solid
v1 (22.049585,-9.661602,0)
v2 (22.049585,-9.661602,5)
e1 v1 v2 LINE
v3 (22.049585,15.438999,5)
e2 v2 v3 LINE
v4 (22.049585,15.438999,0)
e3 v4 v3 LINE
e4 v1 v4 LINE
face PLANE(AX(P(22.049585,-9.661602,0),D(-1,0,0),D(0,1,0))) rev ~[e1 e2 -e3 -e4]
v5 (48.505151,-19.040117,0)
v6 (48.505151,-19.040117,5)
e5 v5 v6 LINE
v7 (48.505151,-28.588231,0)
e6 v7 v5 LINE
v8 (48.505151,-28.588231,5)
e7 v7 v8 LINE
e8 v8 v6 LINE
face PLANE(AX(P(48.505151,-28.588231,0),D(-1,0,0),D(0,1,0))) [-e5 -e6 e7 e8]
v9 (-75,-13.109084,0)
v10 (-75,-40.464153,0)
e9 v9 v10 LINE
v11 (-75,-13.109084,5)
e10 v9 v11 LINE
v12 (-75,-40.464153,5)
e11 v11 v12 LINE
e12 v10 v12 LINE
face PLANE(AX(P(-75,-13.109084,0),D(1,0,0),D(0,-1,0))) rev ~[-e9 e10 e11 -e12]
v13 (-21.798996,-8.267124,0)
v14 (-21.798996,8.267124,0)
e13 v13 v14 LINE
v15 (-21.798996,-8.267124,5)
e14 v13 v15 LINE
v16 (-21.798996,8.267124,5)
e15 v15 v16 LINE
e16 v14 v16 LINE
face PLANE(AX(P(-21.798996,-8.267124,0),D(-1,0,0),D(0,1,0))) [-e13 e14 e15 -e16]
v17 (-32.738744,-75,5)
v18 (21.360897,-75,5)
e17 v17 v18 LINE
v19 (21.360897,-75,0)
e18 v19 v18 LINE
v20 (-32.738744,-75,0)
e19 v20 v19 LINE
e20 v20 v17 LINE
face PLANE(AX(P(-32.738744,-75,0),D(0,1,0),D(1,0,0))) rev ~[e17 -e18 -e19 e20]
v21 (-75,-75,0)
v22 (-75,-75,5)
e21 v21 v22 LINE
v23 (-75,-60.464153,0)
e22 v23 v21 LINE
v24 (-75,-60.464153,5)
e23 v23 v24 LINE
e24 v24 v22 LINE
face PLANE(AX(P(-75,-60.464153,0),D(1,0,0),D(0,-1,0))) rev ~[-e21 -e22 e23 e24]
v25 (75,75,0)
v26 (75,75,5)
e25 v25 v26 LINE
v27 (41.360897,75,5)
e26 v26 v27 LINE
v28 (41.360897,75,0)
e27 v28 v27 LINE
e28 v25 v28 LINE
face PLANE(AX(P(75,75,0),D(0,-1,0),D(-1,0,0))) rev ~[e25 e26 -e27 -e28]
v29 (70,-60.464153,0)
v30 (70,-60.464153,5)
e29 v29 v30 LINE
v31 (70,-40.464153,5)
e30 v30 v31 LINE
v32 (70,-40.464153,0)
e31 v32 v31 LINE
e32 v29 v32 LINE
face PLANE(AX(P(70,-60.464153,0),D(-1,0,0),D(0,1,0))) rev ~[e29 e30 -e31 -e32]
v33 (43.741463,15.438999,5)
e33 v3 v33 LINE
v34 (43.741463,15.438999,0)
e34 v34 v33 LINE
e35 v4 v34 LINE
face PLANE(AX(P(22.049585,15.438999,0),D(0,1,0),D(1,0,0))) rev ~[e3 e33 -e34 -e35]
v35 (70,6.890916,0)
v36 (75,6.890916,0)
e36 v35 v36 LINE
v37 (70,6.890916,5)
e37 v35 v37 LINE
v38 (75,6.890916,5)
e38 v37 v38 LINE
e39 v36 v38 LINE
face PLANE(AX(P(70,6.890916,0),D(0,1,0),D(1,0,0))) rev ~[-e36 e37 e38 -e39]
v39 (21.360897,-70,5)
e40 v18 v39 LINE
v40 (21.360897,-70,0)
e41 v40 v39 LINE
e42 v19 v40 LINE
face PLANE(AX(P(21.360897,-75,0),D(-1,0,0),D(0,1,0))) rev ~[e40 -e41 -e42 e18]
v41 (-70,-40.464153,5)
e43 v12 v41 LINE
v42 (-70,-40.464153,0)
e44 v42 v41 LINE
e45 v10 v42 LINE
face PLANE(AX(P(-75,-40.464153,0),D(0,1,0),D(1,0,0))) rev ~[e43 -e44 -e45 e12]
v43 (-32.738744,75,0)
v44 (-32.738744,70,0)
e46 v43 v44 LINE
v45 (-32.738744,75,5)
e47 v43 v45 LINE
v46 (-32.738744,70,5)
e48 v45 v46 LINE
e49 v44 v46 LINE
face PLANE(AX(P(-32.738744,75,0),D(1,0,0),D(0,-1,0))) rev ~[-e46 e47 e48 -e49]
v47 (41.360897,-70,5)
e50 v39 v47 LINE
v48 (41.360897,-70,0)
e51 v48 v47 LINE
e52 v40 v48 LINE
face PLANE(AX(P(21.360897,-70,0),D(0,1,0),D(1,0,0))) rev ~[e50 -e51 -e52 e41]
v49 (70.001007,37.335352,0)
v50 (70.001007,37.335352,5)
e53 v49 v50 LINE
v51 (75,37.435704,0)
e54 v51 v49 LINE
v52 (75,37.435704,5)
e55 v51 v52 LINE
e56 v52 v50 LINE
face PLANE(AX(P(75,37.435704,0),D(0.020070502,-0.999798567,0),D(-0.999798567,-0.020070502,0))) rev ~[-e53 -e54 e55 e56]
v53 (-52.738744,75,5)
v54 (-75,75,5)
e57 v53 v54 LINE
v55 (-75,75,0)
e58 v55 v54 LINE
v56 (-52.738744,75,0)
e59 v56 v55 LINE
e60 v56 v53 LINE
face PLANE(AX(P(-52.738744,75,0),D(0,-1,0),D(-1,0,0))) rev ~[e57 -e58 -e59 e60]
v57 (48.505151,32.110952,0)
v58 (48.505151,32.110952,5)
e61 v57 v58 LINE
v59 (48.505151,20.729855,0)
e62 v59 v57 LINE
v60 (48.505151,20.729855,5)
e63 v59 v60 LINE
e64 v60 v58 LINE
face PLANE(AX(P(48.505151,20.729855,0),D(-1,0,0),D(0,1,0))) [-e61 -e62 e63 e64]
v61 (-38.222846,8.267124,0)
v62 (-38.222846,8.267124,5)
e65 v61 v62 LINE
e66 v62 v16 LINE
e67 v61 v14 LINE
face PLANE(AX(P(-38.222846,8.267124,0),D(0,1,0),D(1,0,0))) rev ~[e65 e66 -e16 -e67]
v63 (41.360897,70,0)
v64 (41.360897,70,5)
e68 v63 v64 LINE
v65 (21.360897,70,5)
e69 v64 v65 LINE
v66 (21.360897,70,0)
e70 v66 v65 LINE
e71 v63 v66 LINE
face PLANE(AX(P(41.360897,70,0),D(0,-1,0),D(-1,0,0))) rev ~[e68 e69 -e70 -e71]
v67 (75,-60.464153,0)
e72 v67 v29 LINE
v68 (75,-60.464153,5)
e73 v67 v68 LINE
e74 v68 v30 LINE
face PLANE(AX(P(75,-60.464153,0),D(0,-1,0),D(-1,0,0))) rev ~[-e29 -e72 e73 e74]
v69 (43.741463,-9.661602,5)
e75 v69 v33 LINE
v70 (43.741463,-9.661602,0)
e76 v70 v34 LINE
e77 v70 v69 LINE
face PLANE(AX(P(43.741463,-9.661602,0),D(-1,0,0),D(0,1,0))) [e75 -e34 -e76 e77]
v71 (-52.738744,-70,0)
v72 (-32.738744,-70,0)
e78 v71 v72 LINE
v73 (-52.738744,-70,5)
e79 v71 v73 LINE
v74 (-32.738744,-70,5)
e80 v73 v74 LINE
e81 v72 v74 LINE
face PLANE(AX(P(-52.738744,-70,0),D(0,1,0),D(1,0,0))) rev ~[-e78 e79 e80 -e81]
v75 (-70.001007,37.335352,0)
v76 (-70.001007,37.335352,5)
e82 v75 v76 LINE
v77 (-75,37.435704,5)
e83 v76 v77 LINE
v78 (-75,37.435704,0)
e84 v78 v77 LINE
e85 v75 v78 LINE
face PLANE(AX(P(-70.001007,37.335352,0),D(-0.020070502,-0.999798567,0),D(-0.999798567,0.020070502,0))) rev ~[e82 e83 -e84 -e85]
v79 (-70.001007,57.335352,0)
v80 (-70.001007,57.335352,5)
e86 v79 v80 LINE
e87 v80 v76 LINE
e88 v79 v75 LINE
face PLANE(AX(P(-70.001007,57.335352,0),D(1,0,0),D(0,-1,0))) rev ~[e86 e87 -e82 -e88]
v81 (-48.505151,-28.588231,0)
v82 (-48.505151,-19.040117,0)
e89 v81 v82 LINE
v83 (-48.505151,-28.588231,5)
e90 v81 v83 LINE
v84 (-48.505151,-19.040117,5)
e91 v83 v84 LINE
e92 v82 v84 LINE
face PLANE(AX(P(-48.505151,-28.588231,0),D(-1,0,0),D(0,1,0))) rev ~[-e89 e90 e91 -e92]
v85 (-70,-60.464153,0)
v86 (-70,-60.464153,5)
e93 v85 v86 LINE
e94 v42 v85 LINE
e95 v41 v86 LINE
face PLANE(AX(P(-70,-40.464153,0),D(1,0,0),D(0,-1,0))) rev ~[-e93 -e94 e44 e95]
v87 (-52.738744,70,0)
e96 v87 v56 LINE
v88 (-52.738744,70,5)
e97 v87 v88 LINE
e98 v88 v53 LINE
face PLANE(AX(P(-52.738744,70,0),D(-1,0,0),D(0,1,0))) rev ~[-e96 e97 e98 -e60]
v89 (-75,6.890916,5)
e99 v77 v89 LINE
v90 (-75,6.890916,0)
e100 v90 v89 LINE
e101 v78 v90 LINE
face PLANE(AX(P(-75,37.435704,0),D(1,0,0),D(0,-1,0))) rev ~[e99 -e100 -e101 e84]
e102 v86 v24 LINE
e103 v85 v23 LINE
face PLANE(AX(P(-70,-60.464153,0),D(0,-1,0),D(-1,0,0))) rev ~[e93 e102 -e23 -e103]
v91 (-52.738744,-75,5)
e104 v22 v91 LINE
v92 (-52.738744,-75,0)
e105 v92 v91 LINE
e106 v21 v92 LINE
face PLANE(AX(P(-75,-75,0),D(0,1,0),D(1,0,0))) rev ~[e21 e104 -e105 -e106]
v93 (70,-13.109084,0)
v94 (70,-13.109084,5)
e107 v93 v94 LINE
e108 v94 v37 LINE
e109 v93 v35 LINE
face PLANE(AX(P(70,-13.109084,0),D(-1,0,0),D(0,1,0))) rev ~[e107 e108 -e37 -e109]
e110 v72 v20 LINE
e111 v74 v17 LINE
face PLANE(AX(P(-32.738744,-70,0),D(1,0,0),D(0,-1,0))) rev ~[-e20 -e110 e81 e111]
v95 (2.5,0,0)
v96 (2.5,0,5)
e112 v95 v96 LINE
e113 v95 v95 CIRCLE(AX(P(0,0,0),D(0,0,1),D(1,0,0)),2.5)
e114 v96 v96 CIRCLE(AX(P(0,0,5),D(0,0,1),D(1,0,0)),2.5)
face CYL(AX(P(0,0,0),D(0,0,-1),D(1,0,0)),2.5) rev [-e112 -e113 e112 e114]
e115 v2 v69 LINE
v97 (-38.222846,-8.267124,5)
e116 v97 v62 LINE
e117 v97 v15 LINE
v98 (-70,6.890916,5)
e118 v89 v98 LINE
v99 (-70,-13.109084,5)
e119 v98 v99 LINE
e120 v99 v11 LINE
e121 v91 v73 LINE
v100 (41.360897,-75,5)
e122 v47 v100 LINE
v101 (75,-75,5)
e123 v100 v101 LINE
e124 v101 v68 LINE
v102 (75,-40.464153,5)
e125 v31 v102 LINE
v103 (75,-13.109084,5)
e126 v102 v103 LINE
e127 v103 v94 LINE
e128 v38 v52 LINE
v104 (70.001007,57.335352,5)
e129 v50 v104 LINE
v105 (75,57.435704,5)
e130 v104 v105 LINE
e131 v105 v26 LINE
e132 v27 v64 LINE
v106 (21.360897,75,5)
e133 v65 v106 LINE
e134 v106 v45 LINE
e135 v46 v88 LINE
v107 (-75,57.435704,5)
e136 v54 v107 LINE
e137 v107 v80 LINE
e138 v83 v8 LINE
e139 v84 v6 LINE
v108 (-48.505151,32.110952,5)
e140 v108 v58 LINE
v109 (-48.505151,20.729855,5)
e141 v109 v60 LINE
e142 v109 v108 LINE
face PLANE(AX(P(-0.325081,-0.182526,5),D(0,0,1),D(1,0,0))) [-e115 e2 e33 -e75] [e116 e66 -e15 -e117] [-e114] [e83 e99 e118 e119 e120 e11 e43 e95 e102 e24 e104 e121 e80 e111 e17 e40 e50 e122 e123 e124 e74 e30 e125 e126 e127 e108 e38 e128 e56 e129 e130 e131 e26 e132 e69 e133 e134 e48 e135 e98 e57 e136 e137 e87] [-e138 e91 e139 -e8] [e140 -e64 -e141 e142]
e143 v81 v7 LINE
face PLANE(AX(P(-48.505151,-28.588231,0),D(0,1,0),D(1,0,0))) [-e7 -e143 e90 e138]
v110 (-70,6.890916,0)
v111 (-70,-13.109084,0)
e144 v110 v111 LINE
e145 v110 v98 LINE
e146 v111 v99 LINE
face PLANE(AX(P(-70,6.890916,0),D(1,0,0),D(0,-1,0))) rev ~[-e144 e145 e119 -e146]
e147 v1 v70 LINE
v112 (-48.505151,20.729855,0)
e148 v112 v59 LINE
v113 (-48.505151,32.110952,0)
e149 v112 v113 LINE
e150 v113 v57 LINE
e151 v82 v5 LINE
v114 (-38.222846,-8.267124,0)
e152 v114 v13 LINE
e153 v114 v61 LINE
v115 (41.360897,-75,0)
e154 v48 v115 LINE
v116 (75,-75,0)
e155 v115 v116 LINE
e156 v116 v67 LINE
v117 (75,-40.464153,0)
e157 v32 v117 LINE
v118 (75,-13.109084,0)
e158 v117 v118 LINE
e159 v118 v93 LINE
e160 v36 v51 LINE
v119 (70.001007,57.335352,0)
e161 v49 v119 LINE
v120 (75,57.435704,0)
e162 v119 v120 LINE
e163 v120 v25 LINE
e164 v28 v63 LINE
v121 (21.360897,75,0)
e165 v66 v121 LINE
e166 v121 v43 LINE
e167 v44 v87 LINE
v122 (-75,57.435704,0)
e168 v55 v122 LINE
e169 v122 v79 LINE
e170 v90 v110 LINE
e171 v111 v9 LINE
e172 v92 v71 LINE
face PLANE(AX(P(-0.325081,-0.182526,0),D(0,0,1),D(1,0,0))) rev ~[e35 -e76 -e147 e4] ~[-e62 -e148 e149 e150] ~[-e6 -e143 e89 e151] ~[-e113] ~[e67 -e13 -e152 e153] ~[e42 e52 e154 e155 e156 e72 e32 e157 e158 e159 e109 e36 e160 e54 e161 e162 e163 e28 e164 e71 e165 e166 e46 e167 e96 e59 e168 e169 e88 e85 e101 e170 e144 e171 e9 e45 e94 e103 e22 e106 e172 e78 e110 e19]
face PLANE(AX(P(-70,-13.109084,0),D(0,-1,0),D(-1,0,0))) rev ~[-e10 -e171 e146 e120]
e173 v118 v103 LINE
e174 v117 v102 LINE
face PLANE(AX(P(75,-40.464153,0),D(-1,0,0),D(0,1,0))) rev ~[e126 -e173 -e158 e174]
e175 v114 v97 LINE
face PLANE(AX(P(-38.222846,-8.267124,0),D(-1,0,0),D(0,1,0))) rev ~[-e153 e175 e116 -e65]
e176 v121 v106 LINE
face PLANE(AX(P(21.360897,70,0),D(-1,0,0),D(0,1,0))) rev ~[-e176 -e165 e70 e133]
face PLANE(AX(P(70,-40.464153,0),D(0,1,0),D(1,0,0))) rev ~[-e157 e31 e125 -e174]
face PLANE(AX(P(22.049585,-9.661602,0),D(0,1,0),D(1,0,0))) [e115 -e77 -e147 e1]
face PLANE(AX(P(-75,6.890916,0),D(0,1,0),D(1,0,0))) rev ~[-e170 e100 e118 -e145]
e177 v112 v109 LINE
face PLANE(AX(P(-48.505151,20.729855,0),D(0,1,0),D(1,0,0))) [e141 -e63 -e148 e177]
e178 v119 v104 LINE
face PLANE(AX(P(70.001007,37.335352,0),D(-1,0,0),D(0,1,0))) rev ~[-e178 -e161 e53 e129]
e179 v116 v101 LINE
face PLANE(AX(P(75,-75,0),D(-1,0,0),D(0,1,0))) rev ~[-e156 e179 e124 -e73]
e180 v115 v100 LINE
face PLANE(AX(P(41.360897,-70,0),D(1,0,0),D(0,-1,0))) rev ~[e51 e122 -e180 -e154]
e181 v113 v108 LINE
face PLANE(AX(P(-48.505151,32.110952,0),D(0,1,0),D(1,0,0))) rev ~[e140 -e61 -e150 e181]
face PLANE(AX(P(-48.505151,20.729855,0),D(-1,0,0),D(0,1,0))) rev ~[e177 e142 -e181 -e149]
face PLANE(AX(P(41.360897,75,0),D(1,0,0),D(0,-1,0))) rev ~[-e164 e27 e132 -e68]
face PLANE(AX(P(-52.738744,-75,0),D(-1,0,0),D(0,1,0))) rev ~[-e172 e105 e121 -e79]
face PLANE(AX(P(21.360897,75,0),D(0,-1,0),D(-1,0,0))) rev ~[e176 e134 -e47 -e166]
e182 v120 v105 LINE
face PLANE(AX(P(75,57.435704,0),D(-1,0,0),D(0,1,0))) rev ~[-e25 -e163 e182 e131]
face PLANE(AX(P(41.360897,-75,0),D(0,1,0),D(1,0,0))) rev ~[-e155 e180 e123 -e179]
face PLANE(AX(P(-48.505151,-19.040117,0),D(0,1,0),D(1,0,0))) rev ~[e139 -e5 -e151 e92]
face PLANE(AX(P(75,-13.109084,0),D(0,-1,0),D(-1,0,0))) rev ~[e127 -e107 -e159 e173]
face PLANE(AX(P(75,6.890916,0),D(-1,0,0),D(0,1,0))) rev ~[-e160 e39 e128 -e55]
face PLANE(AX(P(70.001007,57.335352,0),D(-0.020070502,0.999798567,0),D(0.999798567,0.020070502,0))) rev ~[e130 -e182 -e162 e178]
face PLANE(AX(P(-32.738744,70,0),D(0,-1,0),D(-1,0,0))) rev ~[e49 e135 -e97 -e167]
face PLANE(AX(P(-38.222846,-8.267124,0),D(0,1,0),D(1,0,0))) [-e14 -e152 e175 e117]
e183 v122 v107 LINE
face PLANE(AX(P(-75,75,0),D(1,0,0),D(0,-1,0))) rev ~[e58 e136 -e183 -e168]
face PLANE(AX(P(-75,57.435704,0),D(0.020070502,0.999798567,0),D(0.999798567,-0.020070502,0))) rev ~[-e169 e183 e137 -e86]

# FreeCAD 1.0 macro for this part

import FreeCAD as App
import Part
import Sketcher
from FreeCAD import Vector


def add_polygon(sketch, points):
    """Adds a closed chain of lines whose ends are joined by coincident constraints."""
    first, n = sketch.GeometryCount, len(points)
    for a, b in zip(points, points[1:] + points[:1]):
        sketch.addGeometry(Part.LineSegment(App.Vector(*a, 0), App.Vector(*b, 0)), False)
    for i in range(n):
        sketch.addConstraint(Sketcher.Constraint("Coincident", first + i, 2, first + (i + 1) % n, 1))

doc = App.newDocument("Part")
body = doc.addObject("PartDesign::Body", "Body")

# Sketch on XY plane
sketch1 = doc.addObject("Sketcher::SketchObject", "Sketch")
body.addObject(sketch1)
sketch1.AttachmentSupport = (doc.XY_Plane, [""])
sketch1.MapMode = "FlatFace"
add_polygon(sketch1, [(-75, -75), (-52.738744, -75), (-52.738744, -70), (-32.738744, -70), (-32.738744, -75), (21.360897, -75), (21.360897, -70), (41.360897, -70), (41.360897, -75), (75, -75), (75, -60.464153), (70, -60.464153), (70, -40.464153), (75, -40.464153), (75, -13.109084), (70, -13.109084), (70, 6.890916), (75, 6.890916), (75, 37.435704), (70.001007, 37.335352), (70.001007, 57.335352), (75, 57.435704), (75, 75), (41.360897, 75), (41.360897, 70), (21.360897, 70), (21.360897, 75), (-32.738744, 75), (-32.738744, 70), (-52.738744, 70), (-52.738744, 75), (-75, 75), (-75, 57.435704), (-70.001007, 57.335352), (-70.001007, 37.335352), (-75, 37.435704), (-75, 6.890916), (-70, 6.890916), (-70, -13.109084), (-75, -13.109084), (-75, -40.464153), (-70, -40.464153), (-70, -60.464153), (-75, -60.464153)])  # lines 0-43
add_polygon(sketch1, [(-21.798996, -8.267124), (-38.222846, -8.267124), (-38.222846, 8.267124), (-21.798996, 8.267124)])  # lines 44-47
add_polygon(sketch1, [(48.505151, -28.588231), (-48.505151, -28.588231), (-48.505151, -19.040117), (48.505151, -19.040117)])  # lines 48-51
sketch1.addGeometry(Part.Circle(Vector(0, 0, 0), Vector(0, 0, 1), 2.5), False)  # 52
add_polygon(sketch1, [(43.741463, -9.661602), (22.049585, -9.661602), (22.049585, 15.438999), (43.741463, 15.438999)])  # lines 53-56
add_polygon(sketch1, [(48.505151, 20.729855), (-48.505151, 20.729855), (-48.505151, 32.110952), (48.505151, 32.110952)])  # lines 57-60
sketch1.addConstraint(Sketcher.Constraint("Horizontal", 0))
sketch1.addConstraint(Sketcher.Constraint("Vertical", 1))
sketch1.addConstraint(Sketcher.Constraint("Horizontal", 2))
sketch1.addConstraint(Sketcher.Constraint("Vertical", 3))
sketch1.addConstraint(Sketcher.Constraint("Horizontal", 4))
sketch1.addConstraint(Sketcher.Constraint("Vertical", 5))
sketch1.addConstraint(Sketcher.Constraint("Horizontal", 6))
sketch1.addConstraint(Sketcher.Constraint("Vertical", 7))
sketch1.addConstraint(Sketcher.Constraint("Horizontal", 8))
sketch1.addConstraint(Sketcher.Constraint("Vertical", 9))
sketch1.addConstraint(Sketcher.Constraint("Horizontal", 10))
sketch1.addConstraint(Sketcher.Constraint("Vertical", 11))
sketch1.addConstraint(Sketcher.Constraint("Horizontal", 12))
sketch1.addConstraint(Sketcher.Constraint("Vertical", 13))
sketch1.addConstraint(Sketcher.Constraint("Horizontal", 14))
sketch1.addConstraint(Sketcher.Constraint("Vertical", 15))
sketch1.addConstraint(Sketcher.Constraint("Horizontal", 16))
sketch1.addConstraint(Sketcher.Constraint("Vertical", 17))
sketch1.addConstraint(Sketcher.Constraint("Vertical", 19))
sketch1.addConstraint(Sketcher.Constraint("Vertical", 21))
sketch1.addConstraint(Sketcher.Constraint("Horizontal", 22))
sketch1.addConstraint(Sketcher.Constraint("Vertical", 23))
sketch1.addConstraint(Sketcher.Constraint("Horizontal", 24))
sketch1.addConstraint(Sketcher.Constraint("Vertical", 25))
sketch1.addConstraint(Sketcher.Constraint("Horizontal", 26))
sketch1.addConstraint(Sketcher.Constraint("Vertical", 27))
sketch1.addConstraint(Sketcher.Constraint("Horizontal", 28))
sketch1.addConstraint(Sketcher.Constraint("Vertical", 29))
sketch1.addConstraint(Sketcher.Constraint("Horizontal", 30))
sketch1.addConstraint(Sketcher.Constraint("Vertical", 31))
sketch1.addConstraint(Sketcher.Constraint("Vertical", 33))
sketch1.addConstraint(Sketcher.Constraint("Vertical", 35))
sketch1.addConstraint(Sketcher.Constraint("Horizontal", 36))
sketch1.addConstraint(Sketcher.Constraint("Vertical", 37))
sketch1.addConstraint(Sketcher.Constraint("Horizontal", 38))
sketch1.addConstraint(Sketcher.Constraint("Vertical", 39))
sketch1.addConstraint(Sketcher.Constraint("Horizontal", 40))
sketch1.addConstraint(Sketcher.Constraint("Vertical", 41))
sketch1.addConstraint(Sketcher.Constraint("Horizontal", 42))
sketch1.addConstraint(Sketcher.Constraint("Vertical", 43))
sketch1.addConstraint(Sketcher.Constraint("Horizontal", 44))
sketch1.addConstraint(Sketcher.Constraint("Vertical", 45))
sketch1.addConstraint(Sketcher.Constraint("Horizontal", 46))
sketch1.addConstraint(Sketcher.Constraint("Vertical", 47))
sketch1.addConstraint(Sketcher.Constraint("Horizontal", 48))
sketch1.addConstraint(Sketcher.Constraint("Vertical", 49))
sketch1.addConstraint(Sketcher.Constraint("Horizontal", 50))
sketch1.addConstraint(Sketcher.Constraint("Vertical", 51))
sketch1.addConstraint(Sketcher.Constraint("Horizontal", 53))
sketch1.addConstraint(Sketcher.Constraint("Vertical", 54))
sketch1.addConstraint(Sketcher.Constraint("Horizontal", 55))
sketch1.addConstraint(Sketcher.Constraint("Vertical", 56))
sketch1.addConstraint(Sketcher.Constraint("Horizontal", 57))
sketch1.addConstraint(Sketcher.Constraint("Vertical", 58))
sketch1.addConstraint(Sketcher.Constraint("Horizontal", 59))
sketch1.addConstraint(Sketcher.Constraint("Vertical", 60))
sketch1.addConstraint(Sketcher.Constraint("Coincident", 52, 3, -1, 1))
sketch1.addConstraint(Sketcher.Constraint("Symmetric", 8, 2, 30, 2, -1, 1))
sketch1.addConstraint(Sketcher.Constraint("Symmetric", 21, 2, 43, 2, -1, 1))
sketch1.addConstraint(Sketcher.Constraint("Symmetric", 21, 2, 30, 2, -2))
sketch1.addConstraint(Sketcher.Constraint("Symmetric", 19, 2, 32, 2, -2))
sketch1.addConstraint(Sketcher.Constraint("Symmetric", 17, 2, 34, 2, -2))
sketch1.addConstraint(Sketcher.Constraint("Symmetric", 15, 2, 36, 2, -2))
sketch1.addConstraint(Sketcher.Constraint("Symmetric", 13, 2, 38, 2, -2))
sketch1.addConstraint(Sketcher.Constraint("Symmetric", 11, 2, 40, 2, -2))
sketch1.addConstraint(Sketcher.Constraint("Symmetric", 6, 2, 23, 2, -1))
sketch1.addConstraint(Sketcher.Constraint("Symmetric", 4, 2, 25, 2, -1))
sketch1.addConstraint(Sketcher.Constraint("Symmetric", 2, 2, 27, 2, -1))
sketch1.addConstraint(Sketcher.Constraint("Parallel", 18, 20))
sketch1.addConstraint(Sketcher.Constraint("Parallel", 32, 34))
sketch1.addConstraint(Sketcher.Constraint("Horizontal", 0, 2, 3, 2))
sketch1.addConstraint(Sketcher.Constraint("Horizontal", 2, 2, 5, 2))
sketch1.addConstraint(Sketcher.Constraint("Horizontal", 20, 2, 31, 2))
sketch1.addConstraint(Sketcher.Constraint("Horizontal", 10, 2, 41, 2))
sketch1.addConstraint(Sketcher.Constraint("Vertical", 9, 2, 12, 2))
sketch1.addConstraint(Sketcher.Constraint("Vertical", 11, 2, 14, 2))
sketch1.addConstraint(Sketcher.Constraint("Vertical", 13, 2, 16, 2))
sketch1.addConstraint(Sketcher.Constraint("Vertical", 1, 2, 28, 2))
sketch1.addConstraint(Sketcher.Constraint("Vertical", 49, 2, 57, 2))
sketch1.addConstraint(Sketcher.Constraint("Vertical", 51, 2, 59, 2))
sketch1.addConstraint(Sketcher.Constraint("Equal", 2, 6))
sketch1.addConstraint(Sketcher.Constraint("Equal", 42, 1))
sketch1.addConstraint(Sketcher.Constraint("Equal", 28, 11))
sketch1.addConstraint(Sketcher.Constraint("Equal", 11, 15))
sketch1.addConstraint(Sketcher.Constraint("Equal", 15, 19))
sketch1.addConstraint(Sketcher.Constraint("Diameter", 52, 5.0))
sketch1.addConstraint(Sketcher.Constraint("DistanceX", 2, 1, 2, 2, 20.0))
sketch1.addConstraint(Sketcher.Constraint("DistanceX", 10, 2, 10, 1, 5.0))
sketch1.addConstraint(Sketcher.Constraint("Distance", 18, 5.0))
sketch1.addConstraint(Sketcher.Constraint("DistanceY", 0, 2, -1, 1, 75.0))
sketch1.addConstraint(Sketcher.Constraint("DistanceX", -1, 1, 8, 2, 75.0))
sketch1.addConstraint(Sketcher.Constraint("DistanceX", 48, 2, 48, 1, 97.010302))
sketch1.addConstraint(Sketcher.Constraint("DistanceY", 54, 1, 54, 2, 25.100601))
sketch1.addConstraint(Sketcher.Constraint("DistanceY", -1, 1, 54, 2, 15.438999))
sketch1.addConstraint(Sketcher.Constraint("DistanceX", 4, 1, 4, 2, 54.099642))
sketch1.addConstraint(Sketcher.Constraint("DistanceX", 44, 2, 44, 1, 16.42385))
sketch1.addConstraint(Sketcher.Constraint("DistanceY", 13, 1, 13, 2, 27.355069))
sketch1.addConstraint(Sketcher.Constraint("DistanceY", 17, 1, 17, 2, 30.544789))
sketch1.addConstraint(Sketcher.Constraint("DistanceY", 45, 1, 45, 2, 16.534249))
sketch1.addConstraint(Sketcher.Constraint("DistanceX", 0, 1, 0, 2, 22.261256))
sketch1.addConstraint(Sketcher.Constraint("DistanceX", 53, 2, 53, 1, 21.691877))
sketch1.addConstraint(Sketcher.Constraint("DistanceY", 9, 1, 9, 2, 14.535847))
sketch1.addConstraint(Sketcher.Constraint("DistanceY", 49, 1, 49, 2, 9.548114))
sketch1.addConstraint(Sketcher.Constraint("DistanceY", 58, 1, 58, 2, 11.381097))
sketch1.addConstraint(Sketcher.Constraint("DistanceY", -1, 1, 18, 2, 37.335352))
sketch1.addConstraint(Sketcher.Constraint("DistanceX", 48, 2, -1, 1, 48.505151))
sketch1.addConstraint(Sketcher.Constraint("DistanceY", 48, 2, -1, 1, 28.588231))
sketch1.addConstraint(Sketcher.Constraint("DistanceY", -1, 1, 58, 2, 32.110952))
sketch1.addConstraint(Sketcher.Constraint("DistanceX", 44, 2, -1, 1, 38.222846))
sketch1.addConstraint(Sketcher.Constraint("DistanceY", 44, 2, -1, 1, 8.267124))
sketch1.addConstraint(Sketcher.Constraint("DistanceX", -1, 1, 53, 2, 22.049585))
pad1 = doc.addObject("PartDesign::Pad", "Pad")
body.addObject(pad1)
pad1.Profile = sketch1
pad1.Length = 5

doc.recompute()
